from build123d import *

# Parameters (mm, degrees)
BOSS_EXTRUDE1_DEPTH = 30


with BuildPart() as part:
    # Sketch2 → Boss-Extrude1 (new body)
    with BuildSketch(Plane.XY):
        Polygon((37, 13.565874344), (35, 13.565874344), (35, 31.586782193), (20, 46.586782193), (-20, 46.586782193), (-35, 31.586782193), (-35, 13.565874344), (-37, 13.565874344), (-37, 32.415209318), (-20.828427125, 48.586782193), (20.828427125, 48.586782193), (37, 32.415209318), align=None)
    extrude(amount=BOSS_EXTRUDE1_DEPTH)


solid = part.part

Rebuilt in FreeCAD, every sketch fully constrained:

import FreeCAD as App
import Part
import Sketcher
from FreeCAD import Vector


def add_polygon(sketch, points):
    """Adds a closed chain of lines whose ends are joined by coincident constraints."""
    first, n = sketch.GeometryCount, len(points)
    for a, b in zip(points, points[1:] + points[:1]):
        sketch.addGeometry(Part.LineSegment(App.Vector(*a, 0), App.Vector(*b, 0)), False)
    for i in range(n):
        sketch.addConstraint(Sketcher.Constraint("Coincident", first + i, 2, first + (i + 1) % n, 1))

doc = App.newDocument("Part")
body = doc.addObject("PartDesign::Body", "Body")

# Sketch on XY plane
sketch1 = doc.addObject("Sketcher::SketchObject", "Sketch")
body.addObject(sketch1)
sketch1.AttachmentSupport = (doc.XY_Plane, [""])
sketch1.MapMode = "FlatFace"
add_polygon(sketch1, [(35, 13.6), (37, 13.6), (37, 32.4), (20.8, 48.6), (-20.8, 48.6), (-37, 32.4), (-37, 13.6), (-35, 13.6), (-35, 31.6), (-20, 46.6), (20, 46.6), (35, 31.6)])  # lines 0-11
sketch1.addConstraint([
    Sketcher.Constraint("Horizontal", 0),
    Sketcher.Constraint("Vertical", 1),
    Sketcher.Constraint("Horizontal", 3),
    Sketcher.Constraint("Vertical", 5),
    Sketcher.Constraint("Horizontal", 6),
    Sketcher.Constraint("Vertical", 7),
    Sketcher.Constraint("Horizontal", 9),
    Sketcher.Constraint("Vertical", 11),
    Sketcher.Constraint("Symmetric", 1, 2, 4, 2, -2),
    Sketcher.Constraint("Symmetric", 7, 2, 10, 2, -2),
    Sketcher.Constraint("Perpendicular", 2, 4),
    Sketcher.Constraint("Parallel", 4, 8),
    Sketcher.Constraint("Perpendicular", 8, 10),
    Sketcher.Constraint("Horizontal", 0, 2, 5, 2),
    Sketcher.Constraint("Equal", 2, 4),
    Sketcher.Constraint("DistanceX", 0, 1, 0, 2, 2.0),
    Sketcher.Constraint("DistanceX", 9, 1, 9, 2, 40.0),
    Sketcher.Constraint("DistanceX", -1, 1, 0, 2, 37.0),
    Sketcher.Constraint("DistanceY", 7, 2, 3, 2, 17.0),
    Sketcher.Constraint("DistanceX", 3, 2, 3, 1, 41.656854),
    Sketcher.Constraint("DistanceY", 1, 1, 1, 2, 18.849335),
    Sketcher.Constraint("DistanceY", -1, 1, 1, 2, 32.415209),
])
pad1 = doc.addObject("PartDesign::Pad", "Pad")
body.addObject(pad1)
pad1.Profile = sketch1
pad1.Length = 30

doc.recompute()
